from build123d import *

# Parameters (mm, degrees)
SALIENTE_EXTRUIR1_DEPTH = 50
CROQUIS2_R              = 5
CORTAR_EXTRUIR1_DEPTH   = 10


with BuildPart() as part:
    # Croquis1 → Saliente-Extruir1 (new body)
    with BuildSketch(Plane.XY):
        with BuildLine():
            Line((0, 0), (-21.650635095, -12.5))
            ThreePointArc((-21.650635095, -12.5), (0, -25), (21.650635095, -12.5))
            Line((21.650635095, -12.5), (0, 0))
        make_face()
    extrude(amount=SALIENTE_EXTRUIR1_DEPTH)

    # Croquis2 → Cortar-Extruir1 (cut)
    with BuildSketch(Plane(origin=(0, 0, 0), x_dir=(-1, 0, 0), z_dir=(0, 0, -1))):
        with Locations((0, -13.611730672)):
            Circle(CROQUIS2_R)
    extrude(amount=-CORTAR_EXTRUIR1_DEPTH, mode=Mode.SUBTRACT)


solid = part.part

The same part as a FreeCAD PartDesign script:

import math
import FreeCAD as App
import Part
import Sketcher

V = App.Vector
Q = App.Units.Quantity

doc = App.newDocument("Part")
body = doc.addObject("PartDesign::Body", "Body")

# Sketch on XY plane
sketch1 = body.newObject("Sketcher::SketchObject", "Sketch")
sketch1.AttachmentSupport = (doc.getObject("XY_Plane"), [""])
sketch1.MapMode = "FlatFace"
sketch1.addGeometry([
    Part.LineSegment(V(0, 0, 0), V(-22, -12, 0)),
    Part.ArcOfCircle(Part.Circle(V(0, 0, 0), V(0, 0, 1), 25), math.radians(-150), math.radians(-30)),
    Part.LineSegment(V(22, -12, 0), V(0, 0, 0)),
], False)
sketch1.addConstraint([
    Sketcher.Constraint("Coincident", 0, 2, 1, 1),
    Sketcher.Constraint("Coincident", 1, 2, 2, 1),
    Sketcher.Constraint("Coincident", 2, 2, 0, 1),
    Sketcher.Constraint("Coincident", 1, 3, -1, 1),
    Sketcher.Constraint("Coincident", 2, 2, -1, 1),
    Sketcher.Constraint("Horizontal", 0, 2, 1, 2),
    Sketcher.Constraint("Radius", 1, Q("25 mm")),
    Sketcher.Constraint("Angle", 0, Q("-150 deg")),
])
pad1 = body.newObject("PartDesign::Pad", "Pad")
pad1.Profile = sketch1
pad1.Length = 50

# Sketch on XY plane
sketch2 = body.newObject("Sketcher::SketchObject", "Sketch001")
sketch2.AttachmentSupport = (doc.getObject("XY_Plane"), [""])
sketch2.MapMode = "FlatFace"
sketch2.addGeometry(Part.Circle(V(0, -14, 0), V(0, 0, 1), 5), False)
sketch2.addConstraint([
    Sketcher.Constraint("PointOnObject", 0, 3, -2),
    Sketcher.Constraint("Diameter", 0, Q("10 mm")),
    Sketcher.Constraint("DistanceY", 0, 3, -1, 1, Q("13.611731 mm")),
])
pocket1 = body.newObject("PartDesign::Pocket", "Pocket")
pocket1.Profile = sketch2
pocket1.Length = 10
pocket1.Reversed = True

doc.recompute()
